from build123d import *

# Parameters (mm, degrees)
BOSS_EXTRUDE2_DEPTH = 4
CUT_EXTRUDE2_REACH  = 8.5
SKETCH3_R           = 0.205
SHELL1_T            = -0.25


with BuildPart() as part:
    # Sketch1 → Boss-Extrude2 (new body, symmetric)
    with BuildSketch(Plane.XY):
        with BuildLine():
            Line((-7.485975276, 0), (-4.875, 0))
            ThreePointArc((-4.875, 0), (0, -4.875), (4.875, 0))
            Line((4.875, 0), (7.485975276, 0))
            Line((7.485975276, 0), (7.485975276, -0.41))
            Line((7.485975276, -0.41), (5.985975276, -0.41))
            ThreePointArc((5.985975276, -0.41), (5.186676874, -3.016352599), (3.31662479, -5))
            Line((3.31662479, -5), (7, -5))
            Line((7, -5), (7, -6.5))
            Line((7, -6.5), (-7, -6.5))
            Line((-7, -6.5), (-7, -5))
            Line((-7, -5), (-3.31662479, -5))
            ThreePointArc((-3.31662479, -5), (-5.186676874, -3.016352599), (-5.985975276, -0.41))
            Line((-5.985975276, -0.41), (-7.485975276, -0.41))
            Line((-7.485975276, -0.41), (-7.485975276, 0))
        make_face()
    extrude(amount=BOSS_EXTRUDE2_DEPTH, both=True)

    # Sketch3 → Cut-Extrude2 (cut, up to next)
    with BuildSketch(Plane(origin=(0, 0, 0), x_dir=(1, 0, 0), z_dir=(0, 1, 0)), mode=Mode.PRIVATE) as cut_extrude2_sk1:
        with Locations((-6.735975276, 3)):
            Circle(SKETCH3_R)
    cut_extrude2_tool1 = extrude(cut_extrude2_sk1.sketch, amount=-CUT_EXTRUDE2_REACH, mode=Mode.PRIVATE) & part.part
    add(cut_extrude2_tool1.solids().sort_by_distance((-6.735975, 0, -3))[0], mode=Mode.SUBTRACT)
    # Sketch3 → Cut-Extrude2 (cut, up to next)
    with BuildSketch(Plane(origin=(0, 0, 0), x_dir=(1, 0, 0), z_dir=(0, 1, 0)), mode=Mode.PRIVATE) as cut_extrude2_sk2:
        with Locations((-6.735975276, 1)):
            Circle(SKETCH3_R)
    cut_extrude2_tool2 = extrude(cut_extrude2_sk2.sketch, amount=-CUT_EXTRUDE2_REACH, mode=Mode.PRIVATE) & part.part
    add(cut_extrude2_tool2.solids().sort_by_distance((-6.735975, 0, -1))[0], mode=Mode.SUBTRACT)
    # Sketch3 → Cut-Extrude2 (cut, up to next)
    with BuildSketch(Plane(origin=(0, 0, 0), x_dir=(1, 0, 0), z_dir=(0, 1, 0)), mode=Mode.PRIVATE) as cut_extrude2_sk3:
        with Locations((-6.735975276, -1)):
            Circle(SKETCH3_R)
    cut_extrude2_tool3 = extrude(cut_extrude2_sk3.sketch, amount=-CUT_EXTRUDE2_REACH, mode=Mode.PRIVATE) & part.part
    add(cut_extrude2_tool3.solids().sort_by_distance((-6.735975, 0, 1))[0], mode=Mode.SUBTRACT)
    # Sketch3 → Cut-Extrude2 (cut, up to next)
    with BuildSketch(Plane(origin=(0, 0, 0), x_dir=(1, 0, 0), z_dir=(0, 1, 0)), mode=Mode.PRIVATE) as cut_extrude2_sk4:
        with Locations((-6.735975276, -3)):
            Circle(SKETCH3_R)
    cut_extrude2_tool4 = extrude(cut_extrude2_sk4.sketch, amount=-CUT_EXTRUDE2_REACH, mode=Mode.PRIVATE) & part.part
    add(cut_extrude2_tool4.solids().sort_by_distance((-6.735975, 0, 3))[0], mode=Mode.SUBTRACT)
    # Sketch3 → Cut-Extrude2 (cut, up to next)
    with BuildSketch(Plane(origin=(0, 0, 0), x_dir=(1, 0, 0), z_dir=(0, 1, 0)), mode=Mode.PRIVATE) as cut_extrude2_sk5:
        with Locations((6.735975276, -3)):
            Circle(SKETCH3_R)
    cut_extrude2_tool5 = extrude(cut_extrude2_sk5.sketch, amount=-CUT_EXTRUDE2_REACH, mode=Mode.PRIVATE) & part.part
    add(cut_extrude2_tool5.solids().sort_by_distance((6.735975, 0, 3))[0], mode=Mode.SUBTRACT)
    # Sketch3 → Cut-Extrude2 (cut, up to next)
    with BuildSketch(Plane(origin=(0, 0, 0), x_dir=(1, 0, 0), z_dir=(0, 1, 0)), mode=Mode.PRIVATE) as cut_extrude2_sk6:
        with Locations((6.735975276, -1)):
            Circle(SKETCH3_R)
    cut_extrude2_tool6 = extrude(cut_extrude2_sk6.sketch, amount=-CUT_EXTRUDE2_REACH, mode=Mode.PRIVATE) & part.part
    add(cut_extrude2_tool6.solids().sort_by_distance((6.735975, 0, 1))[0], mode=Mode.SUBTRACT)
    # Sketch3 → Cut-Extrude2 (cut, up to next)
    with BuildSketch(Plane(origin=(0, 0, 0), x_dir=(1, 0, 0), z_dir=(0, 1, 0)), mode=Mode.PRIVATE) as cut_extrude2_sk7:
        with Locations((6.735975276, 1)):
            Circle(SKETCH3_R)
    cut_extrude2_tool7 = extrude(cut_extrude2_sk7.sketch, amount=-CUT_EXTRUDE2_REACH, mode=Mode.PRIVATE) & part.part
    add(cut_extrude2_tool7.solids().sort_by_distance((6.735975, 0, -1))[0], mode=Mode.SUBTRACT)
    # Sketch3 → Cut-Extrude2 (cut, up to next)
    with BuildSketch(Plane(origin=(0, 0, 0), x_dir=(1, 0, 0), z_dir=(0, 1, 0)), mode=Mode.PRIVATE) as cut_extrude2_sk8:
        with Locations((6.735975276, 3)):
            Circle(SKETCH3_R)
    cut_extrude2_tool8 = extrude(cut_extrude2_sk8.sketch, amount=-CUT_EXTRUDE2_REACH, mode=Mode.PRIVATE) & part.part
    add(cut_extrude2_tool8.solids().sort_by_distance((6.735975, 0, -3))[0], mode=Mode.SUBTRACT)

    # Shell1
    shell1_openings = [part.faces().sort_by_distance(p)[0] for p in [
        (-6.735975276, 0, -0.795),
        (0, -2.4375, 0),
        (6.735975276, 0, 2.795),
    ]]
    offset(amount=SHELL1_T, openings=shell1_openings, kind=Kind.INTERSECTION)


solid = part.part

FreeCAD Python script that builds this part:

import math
import FreeCAD as App
import Part
import Sketcher
from FreeCAD import Vector


def faces_at(feature, points):
    """Names of the faces that lie closest to the given points."""
    faces = feature.Shape.Faces
    near = lambda p: min(range(len(faces)), key=lambda i: faces[i].distToShape(Part.Vertex(*p))[0])
    return sorted({f"Face{near(p) + 1}" for p in points})

doc = App.newDocument("Part")
body = doc.addObject("PartDesign::Body", "Body")

# Sketch on XY plane
sketch1 = doc.addObject("Sketcher::SketchObject", "Sketch")
body.addObject(sketch1)
sketch1.AttachmentSupport = (doc.XY_Plane, [""])
sketch1.MapMode = "FlatFace"
sketch1.addGeometry([
    Part.LineSegment(Vector(-4.875, 0, 0), Vector(-7.485975, 0, 0)),  # 0
    Part.LineSegment(Vector(-7.485975, 0, 0), Vector(-7.485975, -0.41, 0)),  # 1
    Part.LineSegment(Vector(-7.485975, -0.41, 0), Vector(-5.985975, -0.41, 0)),  # 2
    Part.ArcOfCircle(Part.Circle(Vector(0, 0, 0), Vector(0, 0, 1), 6), math.radians(-176.081735), math.radians(-123.55731)),  # 3
    Part.LineSegment(Vector(-3.316625, -5, 0), Vector(-7, -5, 0)),  # 4
    Part.LineSegment(Vector(-7, -5, 0), Vector(-7, -6.5, 0)),  # 5
    Part.LineSegment(Vector(-7, -6.5, 0), Vector(7, -6.5, 0)),  # 6
    Part.LineSegment(Vector(7, -6.5, 0), Vector(7, -5, 0)),  # 7
    Part.LineSegment(Vector(7, -5, 0), Vector(3.316625, -5, 0)),  # 8
    Part.ArcOfCircle(Part.Circle(Vector(0, 0, 0), Vector(0, 0, 1), 6), math.radians(-56.44269), math.radians(-3.918265)),  # 9
    Part.LineSegment(Vector(5.985975, -0.41, 0), Vector(7.485975, -0.41, 0)),  # 10
    Part.LineSegment(Vector(7.485975, -0.41, 0), Vector(7.485975, 0, 0)),  # 11
    Part.LineSegment(Vector(7.485975, 0, 0), Vector(4.875, 0, 0)),  # 12
    Part.ArcOfCircle(Part.Circle(Vector(0, 0, 0), Vector(0, 0, 1), 4.875), math.radians(180), math.radians(360)),  # 13
], False)
sketch1.addConstraint([
    Sketcher.Constraint("Coincident", 0, 2, 1, 1),
    Sketcher.Constraint("Coincident", 1, 2, 2, 1),
    Sketcher.Constraint("Coincident", 2, 2, 3, 1),
    Sketcher.Constraint("Coincident", 3, 2, 4, 1),
    Sketcher.Constraint("Coincident", 4, 2, 5, 1),
    Sketcher.Constraint("Coincident", 5, 2, 6, 1),
    Sketcher.Constraint("Coincident", 6, 2, 7, 1),
    Sketcher.Constraint("Coincident", 7, 2, 8, 1),
    Sketcher.Constraint("Coincident", 8, 2, 9, 1),
    Sketcher.Constraint("Coincident", 9, 2, 10, 1),
    Sketcher.Constraint("Coincident", 10, 2, 11, 1),
    Sketcher.Constraint("Coincident", 11, 2, 12, 1),
    Sketcher.Constraint("Coincident", 12, 2, 13, 2),
    Sketcher.Constraint("Coincident", 13, 1, 0, 1),
    Sketcher.Constraint("Horizontal", 0),
    Sketcher.Constraint("Vertical", 1),
    Sketcher.Constraint("Horizontal", 2),
    Sketcher.Constraint("Horizontal", 4),
    Sketcher.Constraint("Vertical", 5),
    Sketcher.Constraint("Horizontal", 6),
    Sketcher.Constraint("Vertical", 7),
    Sketcher.Constraint("Horizontal", 8),
    Sketcher.Constraint("Horizontal", 10),
    Sketcher.Constraint("Vertical", 11),
    Sketcher.Constraint("Horizontal", 12),
    Sketcher.Constraint("Coincident", 3, 3, -1, 1),
    Sketcher.Constraint("Coincident", 9, 3, -1, 1),
    Sketcher.Constraint("Coincident", 13, 3, -1, 1),
    Sketcher.Constraint("Equal", 3, 9),
    Sketcher.Constraint("Symmetric", 0, 2, 11, 2, -1, 1),
    Sketcher.Constraint("Symmetric", 4, 2, 7, 2, -2),
    Sketcher.Constraint("PointOnObject", 0, 2, -1),
    Sketcher.Constraint("Horizontal", 2, 2, 9, 2),
    Sketcher.Constraint("Equal", 10, 5),
    Sketcher.Constraint("Radius", 3, 6.0),
    Sketcher.Constraint("DistanceX", 6, 1, 6, 2, 14.0),
    Sketcher.Constraint("DistanceX", 2, 1, 2, 2, 1.5),
    Sketcher.Constraint("DistanceY", 3, 2, -1, 1, 5.0),
    Sketcher.Constraint("Radius", 13, 4.875),
    Sketcher.Constraint("DistanceY", 1, 2, 1, 1, 0.41),
])
pad1 = doc.addObject("PartDesign::Pad", "Pad")
body.addObject(pad1)
pad1.Profile = sketch1
pad1.Length = 8
pad1.Midplane = True

# Sketch on XZ plane
sketch2 = doc.addObject("Sketcher::SketchObject", "Sketch001")
body.addObject(sketch2)
sketch2.AttachmentSupport = (doc.XZ_Plane, [""])
sketch2.MapMode = "FlatFace"
sketch2.addGeometry(Part.Circle(Vector(-6.735975, -3, 0), Vector(0, 0, 1), 0.205), False)
sketch2.addConstraint([
    Sketcher.Constraint("Diameter", 0, 0.41),
    Sketcher.Constraint("DistanceY", 0, 3, -1, 1, 3.0),
    Sketcher.Constraint("DistanceX", 0, 3, -1, 1, 6.735975),
])
pocket1 = doc.addObject("PartDesign::Pocket", "Pocket")
body.addObject(pocket1)
pocket1.Profile = sketch2
pocket1.Type = "UpToFirst"
pocket1.Reversed = True

# Sketch on XZ plane
sketch3 = doc.addObject("Sketcher::SketchObject", "Sketch002")
body.addObject(sketch3)
sketch3.AttachmentSupport = (doc.XZ_Plane, [""])
sketch3.MapMode = "FlatFace"
sketch3.addGeometry(Part.Circle(Vector(-6.735975, -1, 0), Vector(0, 0, 1), 0.205), False)
sketch3.addConstraint([
    Sketcher.Constraint("Diameter", 0, 0.41),
    Sketcher.Constraint("DistanceY", 0, 3, -1, 1, 1.0),
    Sketcher.Constraint("DistanceX", 0, 3, -1, 1, 6.735975),
])
pocket2 = doc.addObject("PartDesign::Pocket", "Pocket001")
body.addObject(pocket2)
pocket2.Profile = sketch3
pocket2.Type = "UpToFirst"
pocket2.Reversed = True

# Sketch on XZ plane
sketch4 = doc.addObject("Sketcher::SketchObject", "Sketch003")
body.addObject(sketch4)
sketch4.AttachmentSupport = (doc.XZ_Plane, [""])
sketch4.MapMode = "FlatFace"
sketch4.addGeometry(Part.Circle(Vector(-6.735975, 1, 0), Vector(0, 0, 1), 0.205), False)
sketch4.addConstraint([
    Sketcher.Constraint("Diameter", 0, 0.41),
    Sketcher.Constraint("DistanceY", -1, 1, 0, 3, 1.0),
    Sketcher.Constraint("DistanceX", 0, 3, -1, 1, 6.735975),
])
pocket3 = doc.addObject("PartDesign::Pocket", "Pocket002")
body.addObject(pocket3)
pocket3.Profile = sketch4
pocket3.Type = "UpToFirst"
pocket3.Reversed = True

# Sketch on XZ plane
sketch5 = doc.addObject("Sketcher::SketchObject", "Sketch004")
body.addObject(sketch5)
sketch5.AttachmentSupport = (doc.XZ_Plane, [""])
sketch5.MapMode = "FlatFace"
sketch5.addGeometry(Part.Circle(Vector(-6.735975, 3, 0), Vector(0, 0, 1), 0.205), False)
sketch5.addConstraint([
    Sketcher.Constraint("Diameter", 0, 0.41),
    Sketcher.Constraint("DistanceY", -1, 1, 0, 3, 3.0),
    Sketcher.Constraint("DistanceX", 0, 3, -1, 1, 6.735975),
])
pocket4 = doc.addObject("PartDesign::Pocket", "Pocket003")
body.addObject(pocket4)
pocket4.Profile = sketch5
pocket4.Type = "UpToFirst"
pocket4.Reversed = True

# Sketch on XZ plane
sketch6 = doc.addObject("Sketcher::SketchObject", "Sketch005")
body.addObject(sketch6)
sketch6.AttachmentSupport = (doc.XZ_Plane, [""])
sketch6.MapMode = "FlatFace"
sketch6.addGeometry(Part.Circle(Vector(6.735975, 3, 0), Vector(0, 0, 1), 0.205), False)
sketch6.addConstraint([
    Sketcher.Constraint("Diameter", 0, 0.41),
    Sketcher.Constraint("DistanceY", -1, 1, 0, 3, 3.0),
    Sketcher.Constraint("DistanceX", -1, 1, 0, 3, 6.735975),
])
pocket5 = doc.addObject("PartDesign::Pocket", "Pocket004")
body.addObject(pocket5)
pocket5.Profile = sketch6
pocket5.Type = "UpToFirst"
pocket5.Reversed = True

# Sketch on XZ plane
sketch7 = doc.addObject("Sketcher::SketchObject", "Sketch006")
body.addObject(sketch7)
sketch7.AttachmentSupport = (doc.XZ_Plane, [""])
sketch7.MapMode = "FlatFace"
sketch7.addGeometry(Part.Circle(Vector(6.735975, 1, 0), Vector(0, 0, 1), 0.205), False)
sketch7.addConstraint([
    Sketcher.Constraint("Diameter", 0, 0.41),
    Sketcher.Constraint("DistanceY", -1, 1, 0, 3, 1.0),
    Sketcher.Constraint("DistanceX", -1, 1, 0, 3, 6.735975),
])
pocket6 = doc.addObject("PartDesign::Pocket", "Pocket005")
body.addObject(pocket6)
pocket6.Profile = sketch7
pocket6.Type = "UpToFirst"
pocket6.Reversed = True

# Sketch on XZ plane
sketch8 = doc.addObject("Sketcher::SketchObject", "Sketch007")
body.addObject(sketch8)
sketch8.AttachmentSupport = (doc.XZ_Plane, [""])
sketch8.MapMode = "FlatFace"
sketch8.addGeometry(Part.Circle(Vector(6.735975, -1, 0), Vector(0, 0, 1), 0.205), False)
sketch8.addConstraint([
    Sketcher.Constraint("Diameter", 0, 0.41),
    Sketcher.Constraint("DistanceY", 0, 3, -1, 1, 1.0),
    Sketcher.Constraint("DistanceX", -1, 1, 0, 3, 6.735975),
])
pocket7 = doc.addObject("PartDesign::Pocket", "Pocket006")
body.addObject(pocket7)
pocket7.Profile = sketch8
pocket7.Type = "UpToFirst"
pocket7.Reversed = True

# Sketch on XZ plane
sketch9 = doc.addObject("Sketcher::SketchObject", "Sketch008")
body.addObject(sketch9)
sketch9.AttachmentSupport = (doc.XZ_Plane, [""])
sketch9.MapMode = "FlatFace"
sketch9.addGeometry(Part.Circle(Vector(6.735975, -3, 0), Vector(0, 0, 1), 0.205), False)
sketch9.addConstraint([
    Sketcher.Constraint("Diameter", 0, 0.41),
    Sketcher.Constraint("DistanceY", 0, 3, -1, 1, 3.0),
    Sketcher.Constraint("DistanceX", -1, 1, 0, 3, 6.735975),
])
pocket8 = doc.addObject("PartDesign::Pocket", "Pocket007")
body.addObject(pocket8)
pocket8.Profile = sketch9
pocket8.Type = "UpToFirst"
pocket8.Reversed = True
doc.recompute()

thickness = doc.addObject("PartDesign::Thickness", "Thickness")
body.addObject(thickness)
thickness.Base = (pocket8, faces_at(pocket8, [(-6.18, 0, 0), (0, -4.875, 0), (6.18, 0, 0)]))
thickness.Value = 0.25
thickness.Reversed = True
thickness.Join = "Intersection"

doc.recompute()
